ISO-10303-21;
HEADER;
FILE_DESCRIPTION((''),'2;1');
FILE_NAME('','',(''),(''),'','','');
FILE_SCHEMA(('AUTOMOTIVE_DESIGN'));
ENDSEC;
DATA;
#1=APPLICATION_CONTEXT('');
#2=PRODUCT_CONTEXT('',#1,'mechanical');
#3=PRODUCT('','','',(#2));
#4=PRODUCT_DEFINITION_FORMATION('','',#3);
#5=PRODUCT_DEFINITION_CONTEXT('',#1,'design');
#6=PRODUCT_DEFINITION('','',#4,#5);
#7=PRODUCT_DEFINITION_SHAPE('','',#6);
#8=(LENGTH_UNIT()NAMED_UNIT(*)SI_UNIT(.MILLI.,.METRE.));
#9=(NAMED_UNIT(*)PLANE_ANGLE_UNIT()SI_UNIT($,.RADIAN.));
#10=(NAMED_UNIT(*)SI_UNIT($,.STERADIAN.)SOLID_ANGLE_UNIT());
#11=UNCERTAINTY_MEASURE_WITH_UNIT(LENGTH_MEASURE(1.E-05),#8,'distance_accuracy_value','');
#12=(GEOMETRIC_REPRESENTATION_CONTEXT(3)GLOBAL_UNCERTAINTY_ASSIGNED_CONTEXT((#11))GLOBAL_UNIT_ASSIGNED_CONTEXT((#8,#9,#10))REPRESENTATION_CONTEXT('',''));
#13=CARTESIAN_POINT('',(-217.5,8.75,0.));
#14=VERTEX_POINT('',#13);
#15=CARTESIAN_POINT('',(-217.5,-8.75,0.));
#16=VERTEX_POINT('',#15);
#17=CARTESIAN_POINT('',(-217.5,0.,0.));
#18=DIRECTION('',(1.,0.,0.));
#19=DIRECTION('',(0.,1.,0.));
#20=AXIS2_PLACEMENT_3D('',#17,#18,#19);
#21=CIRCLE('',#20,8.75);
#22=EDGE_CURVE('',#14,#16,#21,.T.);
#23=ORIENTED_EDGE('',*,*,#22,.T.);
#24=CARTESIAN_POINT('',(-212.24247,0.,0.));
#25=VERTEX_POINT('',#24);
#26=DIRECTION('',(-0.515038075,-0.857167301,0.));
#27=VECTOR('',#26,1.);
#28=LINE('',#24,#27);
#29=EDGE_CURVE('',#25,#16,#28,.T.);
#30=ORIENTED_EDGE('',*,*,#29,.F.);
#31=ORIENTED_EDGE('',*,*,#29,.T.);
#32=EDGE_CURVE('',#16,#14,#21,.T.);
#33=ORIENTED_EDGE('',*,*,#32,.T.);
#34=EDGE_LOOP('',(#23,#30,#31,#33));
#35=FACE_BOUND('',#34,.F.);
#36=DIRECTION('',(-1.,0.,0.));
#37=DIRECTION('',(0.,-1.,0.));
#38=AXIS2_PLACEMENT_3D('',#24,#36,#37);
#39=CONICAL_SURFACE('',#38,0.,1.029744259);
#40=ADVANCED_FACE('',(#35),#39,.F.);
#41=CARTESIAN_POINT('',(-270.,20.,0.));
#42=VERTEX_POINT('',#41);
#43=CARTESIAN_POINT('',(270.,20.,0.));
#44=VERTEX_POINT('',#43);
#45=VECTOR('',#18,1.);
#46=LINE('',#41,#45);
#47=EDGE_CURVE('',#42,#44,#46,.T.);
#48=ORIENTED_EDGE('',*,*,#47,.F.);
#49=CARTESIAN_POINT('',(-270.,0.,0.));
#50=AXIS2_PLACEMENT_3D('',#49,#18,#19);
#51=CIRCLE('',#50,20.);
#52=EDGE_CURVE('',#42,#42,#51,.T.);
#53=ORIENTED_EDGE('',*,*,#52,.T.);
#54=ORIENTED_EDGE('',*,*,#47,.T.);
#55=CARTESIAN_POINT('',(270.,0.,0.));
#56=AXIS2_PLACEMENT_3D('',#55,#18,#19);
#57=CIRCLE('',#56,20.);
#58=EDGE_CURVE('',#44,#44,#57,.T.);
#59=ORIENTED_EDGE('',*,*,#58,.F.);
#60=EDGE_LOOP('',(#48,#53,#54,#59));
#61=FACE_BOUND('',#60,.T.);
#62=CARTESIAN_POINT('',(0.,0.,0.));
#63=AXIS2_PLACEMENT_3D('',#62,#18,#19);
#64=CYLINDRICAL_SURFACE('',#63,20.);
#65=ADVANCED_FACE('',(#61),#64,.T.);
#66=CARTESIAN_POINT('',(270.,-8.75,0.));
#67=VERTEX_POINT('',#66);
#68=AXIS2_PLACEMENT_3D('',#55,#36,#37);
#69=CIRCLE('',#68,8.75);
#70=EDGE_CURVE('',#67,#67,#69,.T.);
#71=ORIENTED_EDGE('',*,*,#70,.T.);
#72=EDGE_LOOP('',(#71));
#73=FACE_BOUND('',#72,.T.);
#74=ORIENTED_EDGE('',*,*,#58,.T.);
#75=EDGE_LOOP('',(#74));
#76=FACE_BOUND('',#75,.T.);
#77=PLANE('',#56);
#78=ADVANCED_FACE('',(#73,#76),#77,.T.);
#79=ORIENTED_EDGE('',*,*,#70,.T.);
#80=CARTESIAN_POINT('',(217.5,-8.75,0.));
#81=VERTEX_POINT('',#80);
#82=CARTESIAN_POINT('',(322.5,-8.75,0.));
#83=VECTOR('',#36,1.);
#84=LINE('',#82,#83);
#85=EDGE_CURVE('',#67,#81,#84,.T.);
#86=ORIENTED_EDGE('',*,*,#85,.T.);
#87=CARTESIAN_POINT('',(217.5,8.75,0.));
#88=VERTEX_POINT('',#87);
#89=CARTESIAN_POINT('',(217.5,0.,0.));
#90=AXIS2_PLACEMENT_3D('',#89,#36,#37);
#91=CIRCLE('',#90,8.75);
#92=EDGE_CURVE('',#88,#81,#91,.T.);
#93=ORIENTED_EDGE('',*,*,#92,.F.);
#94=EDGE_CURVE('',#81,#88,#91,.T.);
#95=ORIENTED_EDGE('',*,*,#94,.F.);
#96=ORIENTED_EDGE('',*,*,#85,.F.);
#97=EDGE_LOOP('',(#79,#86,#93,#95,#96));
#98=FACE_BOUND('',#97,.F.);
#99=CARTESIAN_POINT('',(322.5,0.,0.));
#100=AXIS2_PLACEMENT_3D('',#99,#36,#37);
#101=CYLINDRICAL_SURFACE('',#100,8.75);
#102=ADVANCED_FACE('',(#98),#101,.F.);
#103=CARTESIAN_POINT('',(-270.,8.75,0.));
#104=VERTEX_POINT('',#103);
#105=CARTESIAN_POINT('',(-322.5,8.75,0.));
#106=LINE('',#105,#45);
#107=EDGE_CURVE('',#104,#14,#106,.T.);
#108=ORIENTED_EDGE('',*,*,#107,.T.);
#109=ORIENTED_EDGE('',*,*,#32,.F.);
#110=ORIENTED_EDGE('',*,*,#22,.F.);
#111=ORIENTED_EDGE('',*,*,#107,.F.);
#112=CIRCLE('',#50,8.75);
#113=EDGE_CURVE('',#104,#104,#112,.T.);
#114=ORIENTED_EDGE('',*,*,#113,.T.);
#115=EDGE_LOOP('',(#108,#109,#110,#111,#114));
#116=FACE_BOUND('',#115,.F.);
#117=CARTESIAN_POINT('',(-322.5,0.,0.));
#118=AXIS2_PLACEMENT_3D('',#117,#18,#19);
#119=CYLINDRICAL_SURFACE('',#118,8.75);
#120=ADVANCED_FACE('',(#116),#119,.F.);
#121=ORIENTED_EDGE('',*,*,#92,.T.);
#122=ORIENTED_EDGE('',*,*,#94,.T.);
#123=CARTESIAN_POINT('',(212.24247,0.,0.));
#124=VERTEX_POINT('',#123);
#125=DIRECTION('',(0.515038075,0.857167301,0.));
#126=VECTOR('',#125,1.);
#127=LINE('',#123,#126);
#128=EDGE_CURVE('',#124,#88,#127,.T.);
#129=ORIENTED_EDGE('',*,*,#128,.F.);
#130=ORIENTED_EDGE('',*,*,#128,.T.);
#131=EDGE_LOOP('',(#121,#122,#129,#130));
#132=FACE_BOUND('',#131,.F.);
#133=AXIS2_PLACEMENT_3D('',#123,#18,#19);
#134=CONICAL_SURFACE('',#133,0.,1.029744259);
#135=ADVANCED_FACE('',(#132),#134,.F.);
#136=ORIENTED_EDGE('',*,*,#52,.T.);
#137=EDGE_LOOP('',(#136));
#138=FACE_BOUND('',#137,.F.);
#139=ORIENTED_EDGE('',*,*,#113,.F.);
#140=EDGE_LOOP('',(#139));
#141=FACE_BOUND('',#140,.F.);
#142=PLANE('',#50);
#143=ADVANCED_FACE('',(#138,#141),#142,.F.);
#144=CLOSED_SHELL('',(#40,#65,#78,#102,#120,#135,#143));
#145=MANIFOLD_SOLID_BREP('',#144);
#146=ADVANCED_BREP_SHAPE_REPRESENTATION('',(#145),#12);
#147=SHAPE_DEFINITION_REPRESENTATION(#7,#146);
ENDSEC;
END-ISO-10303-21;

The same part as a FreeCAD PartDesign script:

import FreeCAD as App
import Part
import Sketcher

doc = App.newDocument("Part")
body = doc.addObject("PartDesign::Body", "Body")

# Sketch on YZ plane
sketch1 = body.newObject("Sketcher::SketchObject", "Sketch")
sketch1.AttachmentSupport = (doc.getObject("YZ_Plane"), [""])
sketch1.MapMode = "FlatFace"
sketch1.addGeometry(Part.Circle(App.Vector(0, 0, 0), App.Vector(0, 0, 1), 20), False)
sketch1.addConstraint([
    Sketcher.Constraint("Coincident", 0, 3, -1, 1),
    Sketcher.Constraint("Diameter", 0, 40.0),
])
pad1 = body.newObject("PartDesign::Pad", "Pad")
pad1.Profile = sketch1
pad1.Length = 540
pad1.Midplane = True

# Sketch on YZ plane
sketch2 = body.newObject("Sketcher::SketchObject", "Sketch001")
sketch2.AttachmentSupport = (doc.getObject("YZ_Plane"), [""])
sketch2.MapMode = "FlatFace"
sketch2.AttachmentOffset = App.Placement(App.Vector(0, 0, 270), App.Rotation())
sketch2.addGeometry(Part.Circle(App.Vector(0, 0, 0), App.Vector(0, 0, 1), 8.75), False)
sketch2.addConstraint([
    Sketcher.Constraint("Coincident", 0, 3, -1, 1),
    Sketcher.Constraint("Diameter", 0, 17.5),
])
doc.recompute()
hole = body.newObject("PartDesign::Hole", "Hole")
hole.Profile = sketch2
hole.ThreadType = "None"
hole.Diameter = 17.5
hole.DepthType = "Dimension"
hole.Depth = 52.5
hole.DrillPoint = "Angled"
hole.DrillPointAngle = 118

# Sketch on YZ plane
sketch3 = body.newObject("Sketcher::SketchObject", "Sketch002")
sketch3.AttachmentSupport = (doc.getObject("YZ_Plane"), [""])
sketch3.MapMode = "FlatFace"
sketch3.AttachmentOffset = App.Placement(App.Vector(0, 0, -270), App.Rotation())
sketch3.addGeometry(Part.Circle(App.Vector(0, 0, 0), App.Vector(0, 0, 1), 8.75), False)
sketch3.addConstraint([
    Sketcher.Constraint("Coincident", 0, 3, -1, 1),
    Sketcher.Constraint("Diameter", 0, 17.5),
])
doc.recompute()
hole2 = body.newObject("PartDesign::Hole", "Hole001")
hole2.Profile = sketch3
hole2.ThreadType = "None"
hole2.Diameter = 17.5
hole2.DepthType = "Dimension"
hole2.Depth = 52.5
hole2.DrillPoint = "Angled"
hole2.DrillPointAngle = 118
hole2.Reversed = True

doc.recompute()
